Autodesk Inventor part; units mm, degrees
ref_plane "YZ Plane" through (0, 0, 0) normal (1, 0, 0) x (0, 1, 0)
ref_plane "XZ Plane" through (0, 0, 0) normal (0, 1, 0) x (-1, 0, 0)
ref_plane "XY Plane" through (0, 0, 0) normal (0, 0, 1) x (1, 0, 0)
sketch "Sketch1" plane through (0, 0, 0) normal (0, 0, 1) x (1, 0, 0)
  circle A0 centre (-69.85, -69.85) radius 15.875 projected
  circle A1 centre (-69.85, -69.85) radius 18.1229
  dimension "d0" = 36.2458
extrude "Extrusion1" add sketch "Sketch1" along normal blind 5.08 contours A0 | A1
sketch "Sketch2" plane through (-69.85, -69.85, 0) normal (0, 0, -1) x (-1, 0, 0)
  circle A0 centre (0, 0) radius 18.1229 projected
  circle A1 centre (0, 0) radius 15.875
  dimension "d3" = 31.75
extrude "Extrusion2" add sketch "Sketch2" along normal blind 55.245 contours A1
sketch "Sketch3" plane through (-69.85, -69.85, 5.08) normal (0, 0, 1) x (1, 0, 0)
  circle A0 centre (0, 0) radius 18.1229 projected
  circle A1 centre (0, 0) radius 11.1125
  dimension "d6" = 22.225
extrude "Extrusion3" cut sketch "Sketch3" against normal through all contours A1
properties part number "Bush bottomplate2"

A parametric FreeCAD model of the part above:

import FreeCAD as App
import Part
import Sketcher
Q = App.Units.Quantity

doc = App.newDocument("Part")
body = doc.addObject("PartDesign::Body", "Body")

sketch1 = body.newObject("Sketcher::SketchObject", "Sketch")
sketch1.AttachmentSupport = (doc.getObject("XY_Plane"), [""])
sketch1.MapMode = "FlatFace"
sketch1.addGeometry(Part.Circle(App.Vector(-70, -70, 0), App.Vector(0, 0, 1), 18), False)
sketch1.addConstraint([
    Sketcher.Constraint("Diameter", 0, Q("1.427 in")),
    Sketcher.Constraint("DistanceX", 0, 3, -1, 1, Q("2.75 in")),
    Sketcher.Constraint("DistanceY", 0, 3, -1, 1, Q("2.75 in")),
])
pad1 = body.newObject("PartDesign::Pad", "Pad")
pad1.Profile = sketch1
pad1.Length = Q("0.2 in")

sketch2 = body.newObject("Sketcher::SketchObject", "Sketch001")
sketch2.AttachmentSupport = (doc.getObject("XY_Plane"), [""])
sketch2.MapMode = "FlatFace"
sketch2.addGeometry(Part.Circle(App.Vector(-70, -70, 0), App.Vector(0, 0, 1), 16), False)
sketch2.addConstraint([
    Sketcher.Constraint("Diameter", 0, Q("1.25 in")),
    Sketcher.Constraint("DistanceX", 0, 3, -1, 1, Q("2.75 in")),
    Sketcher.Constraint("DistanceY", 0, 3, -1, 1, Q("2.75 in")),
])
pad2 = body.newObject("PartDesign::Pad", "Pad001")
pad2.Profile = sketch2
pad2.Length = Q("2.175 in")
pad2.Reversed = True

sketch3 = body.newObject("Sketcher::SketchObject", "Sketch002")
sketch3.AttachmentSupport = (doc.getObject("XY_Plane"), [""])
sketch3.MapMode = "FlatFace"
sketch3.AttachmentOffset = App.Placement(App.Vector(0, 0, 0.2 * 25.4), App.Rotation())
sketch3.addGeometry(Part.Circle(App.Vector(-70, -70, 0), App.Vector(0, 0, 1), 11), False)
sketch3.addConstraint([
    Sketcher.Constraint("Diameter", 0, Q("0.875 in")),
    Sketcher.Constraint("DistanceX", 0, 3, -1, 1, Q("2.75 in")),
    Sketcher.Constraint("DistanceY", 0, 3, -1, 1, Q("2.75 in")),
])
pocket1 = body.newObject("PartDesign::Pocket", "Pocket")
pocket1.Profile = sketch3
pocket1.Type = "ThroughAll"

doc.recompute()
